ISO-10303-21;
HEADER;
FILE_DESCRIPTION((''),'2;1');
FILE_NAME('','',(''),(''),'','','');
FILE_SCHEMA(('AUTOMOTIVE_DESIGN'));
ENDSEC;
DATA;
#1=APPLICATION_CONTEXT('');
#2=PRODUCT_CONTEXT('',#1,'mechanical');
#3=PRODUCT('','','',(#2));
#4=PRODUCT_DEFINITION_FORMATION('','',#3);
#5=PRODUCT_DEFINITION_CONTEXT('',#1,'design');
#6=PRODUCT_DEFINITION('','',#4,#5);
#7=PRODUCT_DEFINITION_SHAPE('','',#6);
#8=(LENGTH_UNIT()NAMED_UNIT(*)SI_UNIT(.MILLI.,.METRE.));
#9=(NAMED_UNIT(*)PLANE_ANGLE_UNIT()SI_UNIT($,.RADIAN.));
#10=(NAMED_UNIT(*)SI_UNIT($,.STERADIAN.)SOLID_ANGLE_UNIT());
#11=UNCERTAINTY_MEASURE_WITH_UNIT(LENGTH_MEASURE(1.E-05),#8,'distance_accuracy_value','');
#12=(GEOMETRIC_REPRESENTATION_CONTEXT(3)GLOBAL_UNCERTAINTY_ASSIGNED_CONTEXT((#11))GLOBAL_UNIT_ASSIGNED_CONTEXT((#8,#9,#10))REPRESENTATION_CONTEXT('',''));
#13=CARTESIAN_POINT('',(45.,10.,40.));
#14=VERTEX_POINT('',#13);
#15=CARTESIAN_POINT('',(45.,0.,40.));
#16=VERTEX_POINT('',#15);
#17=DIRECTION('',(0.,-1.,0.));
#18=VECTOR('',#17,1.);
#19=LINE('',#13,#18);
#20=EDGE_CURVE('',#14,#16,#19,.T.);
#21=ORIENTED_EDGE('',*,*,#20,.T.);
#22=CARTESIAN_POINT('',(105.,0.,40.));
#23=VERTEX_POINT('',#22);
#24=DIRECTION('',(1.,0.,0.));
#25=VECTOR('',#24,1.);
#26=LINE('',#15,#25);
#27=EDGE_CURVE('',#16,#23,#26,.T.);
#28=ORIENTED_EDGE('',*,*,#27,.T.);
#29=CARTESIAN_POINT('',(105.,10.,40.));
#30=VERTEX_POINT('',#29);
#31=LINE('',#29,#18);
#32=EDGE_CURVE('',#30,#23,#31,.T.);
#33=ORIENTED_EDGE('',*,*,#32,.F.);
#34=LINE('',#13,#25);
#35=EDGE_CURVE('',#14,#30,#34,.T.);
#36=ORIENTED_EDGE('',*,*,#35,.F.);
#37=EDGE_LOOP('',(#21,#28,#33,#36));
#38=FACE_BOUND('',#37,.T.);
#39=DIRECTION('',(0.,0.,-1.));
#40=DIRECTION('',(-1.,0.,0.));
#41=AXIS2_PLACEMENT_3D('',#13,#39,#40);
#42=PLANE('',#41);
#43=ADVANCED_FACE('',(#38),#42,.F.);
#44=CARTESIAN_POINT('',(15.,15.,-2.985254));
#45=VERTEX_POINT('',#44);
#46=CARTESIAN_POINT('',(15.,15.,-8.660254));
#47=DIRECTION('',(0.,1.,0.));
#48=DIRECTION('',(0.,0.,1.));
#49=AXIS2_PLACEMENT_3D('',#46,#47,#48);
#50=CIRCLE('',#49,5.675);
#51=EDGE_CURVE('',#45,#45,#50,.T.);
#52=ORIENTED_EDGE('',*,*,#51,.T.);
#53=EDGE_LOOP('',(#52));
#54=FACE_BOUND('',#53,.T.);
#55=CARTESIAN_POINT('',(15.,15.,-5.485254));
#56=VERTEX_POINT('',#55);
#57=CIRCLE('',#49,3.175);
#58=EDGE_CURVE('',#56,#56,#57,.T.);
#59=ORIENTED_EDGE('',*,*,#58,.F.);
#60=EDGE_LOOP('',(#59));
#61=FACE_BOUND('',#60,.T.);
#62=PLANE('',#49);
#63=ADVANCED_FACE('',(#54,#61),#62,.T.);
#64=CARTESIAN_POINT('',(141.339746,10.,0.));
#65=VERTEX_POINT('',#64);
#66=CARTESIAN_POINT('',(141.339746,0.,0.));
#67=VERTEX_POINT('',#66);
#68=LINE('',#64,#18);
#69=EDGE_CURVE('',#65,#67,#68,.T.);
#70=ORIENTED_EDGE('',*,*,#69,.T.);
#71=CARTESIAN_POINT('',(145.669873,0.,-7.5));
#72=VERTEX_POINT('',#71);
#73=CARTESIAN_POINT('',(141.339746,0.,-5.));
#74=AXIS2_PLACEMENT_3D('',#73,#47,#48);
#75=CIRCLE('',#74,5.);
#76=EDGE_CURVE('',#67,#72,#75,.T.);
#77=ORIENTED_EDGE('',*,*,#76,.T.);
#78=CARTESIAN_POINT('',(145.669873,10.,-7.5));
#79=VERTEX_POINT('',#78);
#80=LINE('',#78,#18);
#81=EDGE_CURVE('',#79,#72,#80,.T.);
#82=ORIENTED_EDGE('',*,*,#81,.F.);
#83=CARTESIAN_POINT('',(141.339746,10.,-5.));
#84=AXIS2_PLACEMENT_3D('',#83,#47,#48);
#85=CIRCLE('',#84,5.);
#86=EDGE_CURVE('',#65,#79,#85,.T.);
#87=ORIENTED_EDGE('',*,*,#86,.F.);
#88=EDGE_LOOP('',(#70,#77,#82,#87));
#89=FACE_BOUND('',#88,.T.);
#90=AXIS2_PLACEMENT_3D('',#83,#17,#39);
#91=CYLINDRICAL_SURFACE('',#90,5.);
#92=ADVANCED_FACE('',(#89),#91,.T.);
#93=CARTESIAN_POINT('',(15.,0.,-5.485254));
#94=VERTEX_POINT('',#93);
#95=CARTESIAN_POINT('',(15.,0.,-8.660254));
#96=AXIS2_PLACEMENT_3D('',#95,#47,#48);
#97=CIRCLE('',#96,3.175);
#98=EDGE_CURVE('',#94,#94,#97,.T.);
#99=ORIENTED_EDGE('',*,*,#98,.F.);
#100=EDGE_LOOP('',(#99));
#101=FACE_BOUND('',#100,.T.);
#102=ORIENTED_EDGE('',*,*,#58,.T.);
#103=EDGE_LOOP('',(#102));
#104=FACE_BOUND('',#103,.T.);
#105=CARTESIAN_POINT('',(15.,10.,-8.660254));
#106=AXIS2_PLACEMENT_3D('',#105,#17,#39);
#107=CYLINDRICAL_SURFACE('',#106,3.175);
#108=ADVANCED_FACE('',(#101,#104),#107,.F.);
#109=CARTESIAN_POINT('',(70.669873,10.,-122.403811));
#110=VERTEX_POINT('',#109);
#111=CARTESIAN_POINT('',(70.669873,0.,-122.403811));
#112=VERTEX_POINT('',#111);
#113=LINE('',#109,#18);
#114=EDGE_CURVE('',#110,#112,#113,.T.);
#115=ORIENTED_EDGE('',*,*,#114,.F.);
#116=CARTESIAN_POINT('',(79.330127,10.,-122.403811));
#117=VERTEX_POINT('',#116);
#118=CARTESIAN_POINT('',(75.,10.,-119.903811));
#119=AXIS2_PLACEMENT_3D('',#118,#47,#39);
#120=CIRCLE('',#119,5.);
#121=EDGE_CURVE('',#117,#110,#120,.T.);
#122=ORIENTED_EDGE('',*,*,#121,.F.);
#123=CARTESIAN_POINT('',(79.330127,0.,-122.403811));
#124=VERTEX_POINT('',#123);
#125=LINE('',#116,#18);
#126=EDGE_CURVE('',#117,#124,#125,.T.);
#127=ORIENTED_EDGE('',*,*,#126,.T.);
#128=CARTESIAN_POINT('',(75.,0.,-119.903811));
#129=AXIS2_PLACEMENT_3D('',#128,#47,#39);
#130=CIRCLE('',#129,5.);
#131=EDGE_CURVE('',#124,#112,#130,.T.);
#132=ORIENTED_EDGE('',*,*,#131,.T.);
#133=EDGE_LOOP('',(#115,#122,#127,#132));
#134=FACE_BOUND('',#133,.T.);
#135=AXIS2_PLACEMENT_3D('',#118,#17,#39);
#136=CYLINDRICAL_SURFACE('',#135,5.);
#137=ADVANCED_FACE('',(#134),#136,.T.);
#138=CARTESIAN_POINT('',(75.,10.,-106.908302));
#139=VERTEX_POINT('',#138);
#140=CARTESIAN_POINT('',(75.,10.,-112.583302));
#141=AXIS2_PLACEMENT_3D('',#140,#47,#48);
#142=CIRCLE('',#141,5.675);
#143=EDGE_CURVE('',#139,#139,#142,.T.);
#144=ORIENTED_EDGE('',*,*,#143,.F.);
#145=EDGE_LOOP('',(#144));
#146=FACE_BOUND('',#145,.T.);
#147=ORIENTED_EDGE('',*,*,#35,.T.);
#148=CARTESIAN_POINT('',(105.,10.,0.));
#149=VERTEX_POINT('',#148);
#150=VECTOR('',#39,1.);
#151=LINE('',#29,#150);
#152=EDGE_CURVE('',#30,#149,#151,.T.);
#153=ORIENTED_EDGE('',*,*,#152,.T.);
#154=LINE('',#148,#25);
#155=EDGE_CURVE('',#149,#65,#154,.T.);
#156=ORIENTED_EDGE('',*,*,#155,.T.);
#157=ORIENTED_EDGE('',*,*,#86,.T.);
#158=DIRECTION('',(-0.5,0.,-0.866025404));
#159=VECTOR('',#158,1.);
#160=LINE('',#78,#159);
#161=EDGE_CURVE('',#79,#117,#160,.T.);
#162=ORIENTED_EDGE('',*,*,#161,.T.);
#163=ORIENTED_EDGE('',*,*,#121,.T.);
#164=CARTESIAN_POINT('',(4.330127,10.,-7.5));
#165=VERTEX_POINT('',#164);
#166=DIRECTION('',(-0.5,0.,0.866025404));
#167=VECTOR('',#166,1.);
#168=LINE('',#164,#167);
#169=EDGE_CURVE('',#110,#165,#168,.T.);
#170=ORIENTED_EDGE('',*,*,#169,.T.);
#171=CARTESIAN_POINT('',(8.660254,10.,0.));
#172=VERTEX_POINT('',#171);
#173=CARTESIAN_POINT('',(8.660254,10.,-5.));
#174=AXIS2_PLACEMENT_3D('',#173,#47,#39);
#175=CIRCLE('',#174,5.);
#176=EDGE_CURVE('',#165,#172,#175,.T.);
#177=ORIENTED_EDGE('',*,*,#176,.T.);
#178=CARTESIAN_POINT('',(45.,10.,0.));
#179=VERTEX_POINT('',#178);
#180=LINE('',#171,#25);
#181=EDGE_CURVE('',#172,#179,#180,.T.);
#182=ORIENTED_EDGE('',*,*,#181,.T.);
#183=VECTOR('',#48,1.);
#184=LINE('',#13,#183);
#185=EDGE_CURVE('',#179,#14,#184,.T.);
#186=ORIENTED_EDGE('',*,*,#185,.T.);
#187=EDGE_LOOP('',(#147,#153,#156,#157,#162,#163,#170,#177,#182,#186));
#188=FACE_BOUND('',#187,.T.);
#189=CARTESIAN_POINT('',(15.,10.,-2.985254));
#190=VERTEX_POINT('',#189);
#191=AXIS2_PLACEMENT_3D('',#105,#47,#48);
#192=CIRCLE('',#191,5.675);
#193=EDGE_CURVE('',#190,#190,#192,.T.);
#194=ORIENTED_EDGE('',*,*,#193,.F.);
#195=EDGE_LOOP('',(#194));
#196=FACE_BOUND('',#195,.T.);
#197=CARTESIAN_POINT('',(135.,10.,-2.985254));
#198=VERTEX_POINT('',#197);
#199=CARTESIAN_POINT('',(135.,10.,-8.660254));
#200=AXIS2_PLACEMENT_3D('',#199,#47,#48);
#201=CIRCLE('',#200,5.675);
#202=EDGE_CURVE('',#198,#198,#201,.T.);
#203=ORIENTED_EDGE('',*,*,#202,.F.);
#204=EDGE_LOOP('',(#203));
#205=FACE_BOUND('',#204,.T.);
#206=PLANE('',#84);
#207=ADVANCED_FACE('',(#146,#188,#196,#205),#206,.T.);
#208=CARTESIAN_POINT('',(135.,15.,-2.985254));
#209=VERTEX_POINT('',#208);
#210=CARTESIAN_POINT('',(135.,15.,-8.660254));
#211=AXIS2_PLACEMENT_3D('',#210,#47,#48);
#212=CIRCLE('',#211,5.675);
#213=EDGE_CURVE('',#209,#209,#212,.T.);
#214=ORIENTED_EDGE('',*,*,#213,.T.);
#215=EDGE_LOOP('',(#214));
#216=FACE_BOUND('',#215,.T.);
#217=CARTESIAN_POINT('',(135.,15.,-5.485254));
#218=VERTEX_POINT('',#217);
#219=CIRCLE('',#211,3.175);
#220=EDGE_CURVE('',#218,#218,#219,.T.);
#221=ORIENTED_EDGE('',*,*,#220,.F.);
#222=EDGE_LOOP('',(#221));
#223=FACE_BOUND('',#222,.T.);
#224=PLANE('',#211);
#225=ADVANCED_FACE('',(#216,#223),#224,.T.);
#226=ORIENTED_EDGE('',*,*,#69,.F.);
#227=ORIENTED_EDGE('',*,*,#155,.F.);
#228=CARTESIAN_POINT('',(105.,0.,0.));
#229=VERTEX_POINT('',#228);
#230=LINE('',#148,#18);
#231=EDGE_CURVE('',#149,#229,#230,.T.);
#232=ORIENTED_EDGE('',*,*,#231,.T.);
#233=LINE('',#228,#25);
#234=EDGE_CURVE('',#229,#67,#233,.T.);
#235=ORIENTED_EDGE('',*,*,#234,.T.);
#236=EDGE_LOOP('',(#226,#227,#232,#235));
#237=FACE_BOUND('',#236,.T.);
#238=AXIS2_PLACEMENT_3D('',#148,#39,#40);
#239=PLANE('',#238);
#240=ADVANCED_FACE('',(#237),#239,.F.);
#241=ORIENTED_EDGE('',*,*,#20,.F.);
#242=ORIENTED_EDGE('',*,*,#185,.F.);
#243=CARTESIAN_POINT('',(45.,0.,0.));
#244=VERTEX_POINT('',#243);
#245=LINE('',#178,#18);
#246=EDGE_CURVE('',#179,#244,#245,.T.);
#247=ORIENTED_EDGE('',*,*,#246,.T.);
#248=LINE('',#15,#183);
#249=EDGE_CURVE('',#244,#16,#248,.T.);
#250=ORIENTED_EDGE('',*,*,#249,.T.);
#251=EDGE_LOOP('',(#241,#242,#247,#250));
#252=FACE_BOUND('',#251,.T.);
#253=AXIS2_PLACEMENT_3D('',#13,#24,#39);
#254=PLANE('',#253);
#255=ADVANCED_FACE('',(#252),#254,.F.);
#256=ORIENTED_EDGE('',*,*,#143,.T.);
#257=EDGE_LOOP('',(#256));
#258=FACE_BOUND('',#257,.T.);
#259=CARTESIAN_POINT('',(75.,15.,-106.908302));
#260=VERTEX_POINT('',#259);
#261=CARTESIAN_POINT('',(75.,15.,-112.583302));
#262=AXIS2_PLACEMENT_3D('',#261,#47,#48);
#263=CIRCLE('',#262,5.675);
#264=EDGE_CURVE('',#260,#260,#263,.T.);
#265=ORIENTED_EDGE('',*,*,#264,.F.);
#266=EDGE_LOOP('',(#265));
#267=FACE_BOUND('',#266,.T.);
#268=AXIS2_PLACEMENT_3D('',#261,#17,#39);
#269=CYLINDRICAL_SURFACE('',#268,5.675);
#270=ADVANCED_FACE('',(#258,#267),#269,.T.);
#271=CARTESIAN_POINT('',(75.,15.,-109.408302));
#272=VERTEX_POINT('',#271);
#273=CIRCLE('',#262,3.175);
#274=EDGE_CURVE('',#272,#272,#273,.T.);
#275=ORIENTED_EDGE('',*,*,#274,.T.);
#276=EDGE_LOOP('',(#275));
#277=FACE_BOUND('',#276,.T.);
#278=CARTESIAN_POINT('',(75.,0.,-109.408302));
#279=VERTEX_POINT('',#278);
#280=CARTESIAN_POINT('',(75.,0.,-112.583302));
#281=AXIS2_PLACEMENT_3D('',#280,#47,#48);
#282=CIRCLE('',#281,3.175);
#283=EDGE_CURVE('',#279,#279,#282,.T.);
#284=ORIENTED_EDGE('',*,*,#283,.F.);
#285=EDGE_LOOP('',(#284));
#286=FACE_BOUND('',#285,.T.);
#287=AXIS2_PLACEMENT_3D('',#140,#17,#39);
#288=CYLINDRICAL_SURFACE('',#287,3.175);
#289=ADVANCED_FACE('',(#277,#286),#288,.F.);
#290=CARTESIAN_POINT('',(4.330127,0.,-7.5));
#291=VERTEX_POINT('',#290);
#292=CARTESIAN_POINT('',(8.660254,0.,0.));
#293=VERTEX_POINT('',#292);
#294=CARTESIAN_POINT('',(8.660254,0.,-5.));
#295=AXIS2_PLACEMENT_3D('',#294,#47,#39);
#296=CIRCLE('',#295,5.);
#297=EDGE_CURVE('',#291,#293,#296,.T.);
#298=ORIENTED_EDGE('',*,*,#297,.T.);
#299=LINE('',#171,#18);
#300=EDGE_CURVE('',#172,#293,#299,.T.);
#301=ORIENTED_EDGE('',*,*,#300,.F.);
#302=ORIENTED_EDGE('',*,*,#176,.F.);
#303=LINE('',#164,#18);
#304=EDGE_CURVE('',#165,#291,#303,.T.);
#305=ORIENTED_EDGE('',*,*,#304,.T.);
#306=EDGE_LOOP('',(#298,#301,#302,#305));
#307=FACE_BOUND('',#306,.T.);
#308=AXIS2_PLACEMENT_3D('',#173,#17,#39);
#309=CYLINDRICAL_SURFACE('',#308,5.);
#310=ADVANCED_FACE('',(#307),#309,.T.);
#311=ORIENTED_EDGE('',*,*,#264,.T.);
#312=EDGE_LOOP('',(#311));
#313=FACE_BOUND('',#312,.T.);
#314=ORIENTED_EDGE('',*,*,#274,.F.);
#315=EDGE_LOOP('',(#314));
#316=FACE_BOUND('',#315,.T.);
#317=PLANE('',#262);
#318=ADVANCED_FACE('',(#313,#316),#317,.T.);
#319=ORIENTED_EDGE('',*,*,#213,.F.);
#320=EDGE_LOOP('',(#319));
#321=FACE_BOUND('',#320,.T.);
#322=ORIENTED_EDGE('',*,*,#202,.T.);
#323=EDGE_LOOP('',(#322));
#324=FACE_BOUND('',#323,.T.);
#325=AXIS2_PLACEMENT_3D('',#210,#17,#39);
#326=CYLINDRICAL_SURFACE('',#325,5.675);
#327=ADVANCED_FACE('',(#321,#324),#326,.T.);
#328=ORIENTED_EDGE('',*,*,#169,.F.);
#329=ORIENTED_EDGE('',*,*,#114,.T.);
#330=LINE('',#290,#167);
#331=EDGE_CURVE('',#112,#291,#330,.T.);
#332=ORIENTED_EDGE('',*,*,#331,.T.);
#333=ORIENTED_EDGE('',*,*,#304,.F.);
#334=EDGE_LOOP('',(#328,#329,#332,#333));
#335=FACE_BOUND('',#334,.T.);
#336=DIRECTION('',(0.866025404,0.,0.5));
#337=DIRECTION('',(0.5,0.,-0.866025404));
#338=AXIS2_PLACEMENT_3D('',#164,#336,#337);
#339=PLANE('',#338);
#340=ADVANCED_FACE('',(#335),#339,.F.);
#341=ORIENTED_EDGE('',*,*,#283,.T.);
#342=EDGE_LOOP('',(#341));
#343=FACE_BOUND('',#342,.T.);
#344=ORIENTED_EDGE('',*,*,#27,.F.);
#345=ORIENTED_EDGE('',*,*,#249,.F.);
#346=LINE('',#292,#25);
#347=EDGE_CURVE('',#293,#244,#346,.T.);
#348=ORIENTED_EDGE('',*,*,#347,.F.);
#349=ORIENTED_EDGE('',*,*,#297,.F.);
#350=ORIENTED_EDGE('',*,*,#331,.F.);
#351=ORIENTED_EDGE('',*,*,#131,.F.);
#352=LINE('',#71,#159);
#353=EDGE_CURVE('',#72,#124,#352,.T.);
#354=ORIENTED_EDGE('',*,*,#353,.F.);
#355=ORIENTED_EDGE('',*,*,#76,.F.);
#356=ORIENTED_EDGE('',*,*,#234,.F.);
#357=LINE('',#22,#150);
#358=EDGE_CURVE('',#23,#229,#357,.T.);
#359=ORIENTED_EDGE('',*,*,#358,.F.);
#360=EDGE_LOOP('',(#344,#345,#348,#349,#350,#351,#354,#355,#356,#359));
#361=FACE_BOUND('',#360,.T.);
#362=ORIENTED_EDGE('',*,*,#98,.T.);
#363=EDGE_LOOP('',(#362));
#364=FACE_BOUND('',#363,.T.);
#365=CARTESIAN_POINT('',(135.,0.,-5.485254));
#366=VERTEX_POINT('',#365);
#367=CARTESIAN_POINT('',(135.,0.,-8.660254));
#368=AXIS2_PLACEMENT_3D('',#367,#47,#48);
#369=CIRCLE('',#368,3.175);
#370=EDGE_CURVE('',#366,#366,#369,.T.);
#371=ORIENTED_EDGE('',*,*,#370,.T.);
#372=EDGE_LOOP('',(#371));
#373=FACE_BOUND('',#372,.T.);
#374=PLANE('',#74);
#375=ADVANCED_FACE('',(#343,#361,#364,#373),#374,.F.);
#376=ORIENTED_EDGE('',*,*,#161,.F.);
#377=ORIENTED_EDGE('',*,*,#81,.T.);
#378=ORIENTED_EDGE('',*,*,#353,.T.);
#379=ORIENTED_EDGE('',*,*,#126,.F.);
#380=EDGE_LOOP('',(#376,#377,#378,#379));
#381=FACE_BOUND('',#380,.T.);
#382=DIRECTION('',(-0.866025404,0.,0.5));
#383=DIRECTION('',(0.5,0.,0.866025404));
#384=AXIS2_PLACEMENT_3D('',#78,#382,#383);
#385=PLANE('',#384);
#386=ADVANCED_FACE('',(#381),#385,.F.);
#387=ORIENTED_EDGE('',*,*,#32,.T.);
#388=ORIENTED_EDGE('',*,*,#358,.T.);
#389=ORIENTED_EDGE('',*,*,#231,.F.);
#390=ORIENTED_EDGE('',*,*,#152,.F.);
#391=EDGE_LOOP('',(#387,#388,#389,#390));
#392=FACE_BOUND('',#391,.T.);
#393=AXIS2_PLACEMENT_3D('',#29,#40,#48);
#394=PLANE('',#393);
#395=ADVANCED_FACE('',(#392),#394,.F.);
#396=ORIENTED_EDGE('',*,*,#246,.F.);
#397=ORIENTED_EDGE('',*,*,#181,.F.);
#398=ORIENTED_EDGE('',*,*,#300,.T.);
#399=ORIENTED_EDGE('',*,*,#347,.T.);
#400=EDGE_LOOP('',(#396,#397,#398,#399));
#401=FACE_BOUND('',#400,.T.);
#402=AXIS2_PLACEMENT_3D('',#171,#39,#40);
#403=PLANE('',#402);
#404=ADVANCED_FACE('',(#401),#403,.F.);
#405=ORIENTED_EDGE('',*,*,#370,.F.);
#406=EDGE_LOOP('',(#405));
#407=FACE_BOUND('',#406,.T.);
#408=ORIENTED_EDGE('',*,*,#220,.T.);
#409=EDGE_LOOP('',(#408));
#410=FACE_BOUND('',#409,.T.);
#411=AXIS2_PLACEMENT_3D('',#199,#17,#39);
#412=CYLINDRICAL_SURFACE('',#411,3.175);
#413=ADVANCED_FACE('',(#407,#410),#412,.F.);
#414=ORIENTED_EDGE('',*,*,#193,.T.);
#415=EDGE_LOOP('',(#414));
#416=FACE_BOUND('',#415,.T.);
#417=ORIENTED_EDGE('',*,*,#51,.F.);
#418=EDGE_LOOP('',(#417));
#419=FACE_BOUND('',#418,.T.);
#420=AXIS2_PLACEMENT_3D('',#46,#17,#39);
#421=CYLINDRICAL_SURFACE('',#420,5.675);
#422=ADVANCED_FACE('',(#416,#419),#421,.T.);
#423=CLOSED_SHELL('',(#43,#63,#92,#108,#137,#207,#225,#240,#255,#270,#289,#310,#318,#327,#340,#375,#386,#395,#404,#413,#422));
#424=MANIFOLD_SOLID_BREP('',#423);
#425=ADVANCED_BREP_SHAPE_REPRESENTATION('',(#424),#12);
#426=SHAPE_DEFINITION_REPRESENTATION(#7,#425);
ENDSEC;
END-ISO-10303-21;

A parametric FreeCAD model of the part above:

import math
import FreeCAD as App
import Part
import Sketcher
from FreeCAD import Vector
Q = App.Units.Quantity

doc = App.newDocument("Part")
body = doc.addObject("PartDesign::Body", "Body")

sketch1 = doc.addObject("Sketcher::SketchObject", "Sketch")
body.addObject(sketch1)
sketch1.AttachmentSupport = (doc.XZ_Plane, [""])
sketch1.MapMode = "FlatFace"
sketch1.addGeometry([
    Part.LineSegment(Vector(70.7, -122.4, 0), Vector(4.3, -7.5, 0)),
    Part.ArcOfCircle(Part.Circle(Vector(8.7, -5, 0), Vector(0, 0, 1), 5), math.radians(90), math.radians(210)),
    Part.LineSegment(Vector(8.7, 0, 0), Vector(45, 0, 0)),
    Part.LineSegment(Vector(45, 0, 0), Vector(45, 40, 0)),
    Part.LineSegment(Vector(45, 40, 0), Vector(105, 40, 0)),
    Part.LineSegment(Vector(105, 40, 0), Vector(105, 0, 0)),
    Part.LineSegment(Vector(105, 0, 0), Vector(141.3, 0, 0)),
    Part.ArcOfCircle(Part.Circle(Vector(141.3, -5, 0), Vector(0, 0, 1), 5), math.radians(-30), math.radians(90)),
    Part.LineSegment(Vector(145.7, -7.5, 0), Vector(79.3, -122.4, 0)),
    Part.ArcOfCircle(Part.Circle(Vector(75, -119.9, 0), Vector(0, 0, 1), 5), math.radians(-150), math.radians(-30)),
    Part.Circle(Vector(135, -8.7, 0), Vector(0, 0, 1), 3.2),
    Part.Circle(Vector(15, -8.7, 0), Vector(0, 0, 1), 3.2),
    Part.Circle(Vector(75, -112.6, 0), Vector(0, 0, 1), 3.2),
], False)
sketch1.addConstraint([
    Sketcher.Constraint("Tangent", 0, 2, 1, 2),
    Sketcher.Constraint("Tangent", 1, 1, 2, 1),
    Sketcher.Constraint("Coincident", 2, 2, 3, 1),
    Sketcher.Constraint("Coincident", 3, 2, 4, 1),
    Sketcher.Constraint("Coincident", 4, 2, 5, 1),
    Sketcher.Constraint("Coincident", 5, 2, 6, 1),
    Sketcher.Constraint("Tangent", 6, 2, 7, 2),
    Sketcher.Constraint("Tangent", 7, 1, 8, 1),
    Sketcher.Constraint("Tangent", 8, 2, 9, 2),
    Sketcher.Constraint("Tangent", 9, 1, 0, 1),
    Sketcher.Constraint("Horizontal", 2),
    Sketcher.Constraint("Vertical", 3),
    Sketcher.Constraint("Horizontal", 4),
    Sketcher.Constraint("Vertical", 5),
    Sketcher.Constraint("Horizontal", 6),
    Sketcher.Constraint("Equal", 1, 7),
    Sketcher.Constraint("Equal", 7, 9),
    Sketcher.Constraint("Equal", 10, 11),
    Sketcher.Constraint("Equal", 11, 12),
    Sketcher.Constraint("PointOnObject", 1, 1, -1),
    Sketcher.Constraint("PointOnObject", 5, 2, -1),
    Sketcher.Constraint("Horizontal", 10, 3, 11, 3),
    Sketcher.Constraint("Horizontal", 0, 2, 7, 1),
    Sketcher.Constraint("Vertical", 9, 3, 12, 3),
    Sketcher.Constraint("Equal", 2, 6),
    Sketcher.Constraint("Radius", 1, 5.0),
    Sketcher.Constraint("Diameter", 10, 6.35),
    Sketcher.Constraint("DistanceX", 4, 1, 4, 2, 60.0),
    Sketcher.Constraint("DistanceY", 3, 1, 3, 2, 40.0),
    Sketcher.Constraint("Angle", 0, Q("120 deg")),
    Sketcher.Constraint("DistanceX", -1, 1, 9, 3, 75.0),
    Sketcher.Constraint("DistanceX", -1, 1, 10, 3, 135.0),
    Sketcher.Constraint("DistanceX", -1, 1, 11, 3, 15.0),
    Sketcher.Constraint("Distance", 0, 132.679492),
    Sketcher.Constraint("DistanceY", 9, 3, 12, 3, 7.320508),
    Sketcher.Constraint("DistanceY", 12, 3, 10, 3, 103.923048),
])
pad1 = doc.addObject("PartDesign::Pad", "Pad")
body.addObject(pad1)
pad1.Profile = sketch1
pad1.Length = 10
pad1.Reversed = True

sketch2 = doc.addObject("Sketcher::SketchObject", "Sketch001")
body.addObject(sketch2)
sketch2.AttachmentSupport = (doc.XZ_Plane, [""])
sketch2.MapMode = "FlatFace"
sketch2.AttachmentOffset = App.Placement(Vector(0, 0, -10), App.Rotation())
sketch2.addGeometry([
    Part.Circle(Vector(15, -8.7, 0), Vector(0, 0, 1), 5.7),
    Part.Circle(Vector(15, -8.7, 0), Vector(0, 0, 1), 3.2),
    Part.Circle(Vector(135, -8.7, 0), Vector(0, 0, 1), 5.7),
    Part.Circle(Vector(135, -8.7, 0), Vector(0, 0, 1), 3.2),
    Part.Circle(Vector(75, -112.6, 0), Vector(0, 0, 1), 5.7),
    Part.Circle(Vector(75, -112.6, 0), Vector(0, 0, 1), 3.2),
], False)
sketch2.addConstraint([
    Sketcher.Constraint("Coincident", 1, 3, 0, 3),
    Sketcher.Constraint("Coincident", 3, 3, 2, 3),
    Sketcher.Constraint("Coincident", 5, 3, 4, 3),
    Sketcher.Constraint("Equal", 0, 2),
    Sketcher.Constraint("Equal", 1, 3),
    Sketcher.Constraint("Equal", 2, 4),
    Sketcher.Constraint("Equal", 3, 5),
    Sketcher.Constraint("Horizontal", 1, 3, 2, 3),
    Sketcher.Constraint("Diameter", 0, 11.35),
    Sketcher.Constraint("Diameter", 1, 6.35),
    Sketcher.Constraint("DistanceX", -1, 1, 0, 3, 15.0),
    Sketcher.Constraint("DistanceX", -1, 1, 2, 3, 135.0),
    Sketcher.Constraint("DistanceX", -1, 1, 4, 3, 75.0),
    Sketcher.Constraint("DistanceY", 4, 3, 0, 3, 103.923048),
    Sketcher.Constraint("DistanceY", 0, 3, -1, 1, 8.660254),
])
pad2 = doc.addObject("PartDesign::Pad", "Pad001")
body.addObject(pad2)
pad2.Profile = sketch2
pad2.Length = 5
pad2.Reversed = True

doc.recompute()
